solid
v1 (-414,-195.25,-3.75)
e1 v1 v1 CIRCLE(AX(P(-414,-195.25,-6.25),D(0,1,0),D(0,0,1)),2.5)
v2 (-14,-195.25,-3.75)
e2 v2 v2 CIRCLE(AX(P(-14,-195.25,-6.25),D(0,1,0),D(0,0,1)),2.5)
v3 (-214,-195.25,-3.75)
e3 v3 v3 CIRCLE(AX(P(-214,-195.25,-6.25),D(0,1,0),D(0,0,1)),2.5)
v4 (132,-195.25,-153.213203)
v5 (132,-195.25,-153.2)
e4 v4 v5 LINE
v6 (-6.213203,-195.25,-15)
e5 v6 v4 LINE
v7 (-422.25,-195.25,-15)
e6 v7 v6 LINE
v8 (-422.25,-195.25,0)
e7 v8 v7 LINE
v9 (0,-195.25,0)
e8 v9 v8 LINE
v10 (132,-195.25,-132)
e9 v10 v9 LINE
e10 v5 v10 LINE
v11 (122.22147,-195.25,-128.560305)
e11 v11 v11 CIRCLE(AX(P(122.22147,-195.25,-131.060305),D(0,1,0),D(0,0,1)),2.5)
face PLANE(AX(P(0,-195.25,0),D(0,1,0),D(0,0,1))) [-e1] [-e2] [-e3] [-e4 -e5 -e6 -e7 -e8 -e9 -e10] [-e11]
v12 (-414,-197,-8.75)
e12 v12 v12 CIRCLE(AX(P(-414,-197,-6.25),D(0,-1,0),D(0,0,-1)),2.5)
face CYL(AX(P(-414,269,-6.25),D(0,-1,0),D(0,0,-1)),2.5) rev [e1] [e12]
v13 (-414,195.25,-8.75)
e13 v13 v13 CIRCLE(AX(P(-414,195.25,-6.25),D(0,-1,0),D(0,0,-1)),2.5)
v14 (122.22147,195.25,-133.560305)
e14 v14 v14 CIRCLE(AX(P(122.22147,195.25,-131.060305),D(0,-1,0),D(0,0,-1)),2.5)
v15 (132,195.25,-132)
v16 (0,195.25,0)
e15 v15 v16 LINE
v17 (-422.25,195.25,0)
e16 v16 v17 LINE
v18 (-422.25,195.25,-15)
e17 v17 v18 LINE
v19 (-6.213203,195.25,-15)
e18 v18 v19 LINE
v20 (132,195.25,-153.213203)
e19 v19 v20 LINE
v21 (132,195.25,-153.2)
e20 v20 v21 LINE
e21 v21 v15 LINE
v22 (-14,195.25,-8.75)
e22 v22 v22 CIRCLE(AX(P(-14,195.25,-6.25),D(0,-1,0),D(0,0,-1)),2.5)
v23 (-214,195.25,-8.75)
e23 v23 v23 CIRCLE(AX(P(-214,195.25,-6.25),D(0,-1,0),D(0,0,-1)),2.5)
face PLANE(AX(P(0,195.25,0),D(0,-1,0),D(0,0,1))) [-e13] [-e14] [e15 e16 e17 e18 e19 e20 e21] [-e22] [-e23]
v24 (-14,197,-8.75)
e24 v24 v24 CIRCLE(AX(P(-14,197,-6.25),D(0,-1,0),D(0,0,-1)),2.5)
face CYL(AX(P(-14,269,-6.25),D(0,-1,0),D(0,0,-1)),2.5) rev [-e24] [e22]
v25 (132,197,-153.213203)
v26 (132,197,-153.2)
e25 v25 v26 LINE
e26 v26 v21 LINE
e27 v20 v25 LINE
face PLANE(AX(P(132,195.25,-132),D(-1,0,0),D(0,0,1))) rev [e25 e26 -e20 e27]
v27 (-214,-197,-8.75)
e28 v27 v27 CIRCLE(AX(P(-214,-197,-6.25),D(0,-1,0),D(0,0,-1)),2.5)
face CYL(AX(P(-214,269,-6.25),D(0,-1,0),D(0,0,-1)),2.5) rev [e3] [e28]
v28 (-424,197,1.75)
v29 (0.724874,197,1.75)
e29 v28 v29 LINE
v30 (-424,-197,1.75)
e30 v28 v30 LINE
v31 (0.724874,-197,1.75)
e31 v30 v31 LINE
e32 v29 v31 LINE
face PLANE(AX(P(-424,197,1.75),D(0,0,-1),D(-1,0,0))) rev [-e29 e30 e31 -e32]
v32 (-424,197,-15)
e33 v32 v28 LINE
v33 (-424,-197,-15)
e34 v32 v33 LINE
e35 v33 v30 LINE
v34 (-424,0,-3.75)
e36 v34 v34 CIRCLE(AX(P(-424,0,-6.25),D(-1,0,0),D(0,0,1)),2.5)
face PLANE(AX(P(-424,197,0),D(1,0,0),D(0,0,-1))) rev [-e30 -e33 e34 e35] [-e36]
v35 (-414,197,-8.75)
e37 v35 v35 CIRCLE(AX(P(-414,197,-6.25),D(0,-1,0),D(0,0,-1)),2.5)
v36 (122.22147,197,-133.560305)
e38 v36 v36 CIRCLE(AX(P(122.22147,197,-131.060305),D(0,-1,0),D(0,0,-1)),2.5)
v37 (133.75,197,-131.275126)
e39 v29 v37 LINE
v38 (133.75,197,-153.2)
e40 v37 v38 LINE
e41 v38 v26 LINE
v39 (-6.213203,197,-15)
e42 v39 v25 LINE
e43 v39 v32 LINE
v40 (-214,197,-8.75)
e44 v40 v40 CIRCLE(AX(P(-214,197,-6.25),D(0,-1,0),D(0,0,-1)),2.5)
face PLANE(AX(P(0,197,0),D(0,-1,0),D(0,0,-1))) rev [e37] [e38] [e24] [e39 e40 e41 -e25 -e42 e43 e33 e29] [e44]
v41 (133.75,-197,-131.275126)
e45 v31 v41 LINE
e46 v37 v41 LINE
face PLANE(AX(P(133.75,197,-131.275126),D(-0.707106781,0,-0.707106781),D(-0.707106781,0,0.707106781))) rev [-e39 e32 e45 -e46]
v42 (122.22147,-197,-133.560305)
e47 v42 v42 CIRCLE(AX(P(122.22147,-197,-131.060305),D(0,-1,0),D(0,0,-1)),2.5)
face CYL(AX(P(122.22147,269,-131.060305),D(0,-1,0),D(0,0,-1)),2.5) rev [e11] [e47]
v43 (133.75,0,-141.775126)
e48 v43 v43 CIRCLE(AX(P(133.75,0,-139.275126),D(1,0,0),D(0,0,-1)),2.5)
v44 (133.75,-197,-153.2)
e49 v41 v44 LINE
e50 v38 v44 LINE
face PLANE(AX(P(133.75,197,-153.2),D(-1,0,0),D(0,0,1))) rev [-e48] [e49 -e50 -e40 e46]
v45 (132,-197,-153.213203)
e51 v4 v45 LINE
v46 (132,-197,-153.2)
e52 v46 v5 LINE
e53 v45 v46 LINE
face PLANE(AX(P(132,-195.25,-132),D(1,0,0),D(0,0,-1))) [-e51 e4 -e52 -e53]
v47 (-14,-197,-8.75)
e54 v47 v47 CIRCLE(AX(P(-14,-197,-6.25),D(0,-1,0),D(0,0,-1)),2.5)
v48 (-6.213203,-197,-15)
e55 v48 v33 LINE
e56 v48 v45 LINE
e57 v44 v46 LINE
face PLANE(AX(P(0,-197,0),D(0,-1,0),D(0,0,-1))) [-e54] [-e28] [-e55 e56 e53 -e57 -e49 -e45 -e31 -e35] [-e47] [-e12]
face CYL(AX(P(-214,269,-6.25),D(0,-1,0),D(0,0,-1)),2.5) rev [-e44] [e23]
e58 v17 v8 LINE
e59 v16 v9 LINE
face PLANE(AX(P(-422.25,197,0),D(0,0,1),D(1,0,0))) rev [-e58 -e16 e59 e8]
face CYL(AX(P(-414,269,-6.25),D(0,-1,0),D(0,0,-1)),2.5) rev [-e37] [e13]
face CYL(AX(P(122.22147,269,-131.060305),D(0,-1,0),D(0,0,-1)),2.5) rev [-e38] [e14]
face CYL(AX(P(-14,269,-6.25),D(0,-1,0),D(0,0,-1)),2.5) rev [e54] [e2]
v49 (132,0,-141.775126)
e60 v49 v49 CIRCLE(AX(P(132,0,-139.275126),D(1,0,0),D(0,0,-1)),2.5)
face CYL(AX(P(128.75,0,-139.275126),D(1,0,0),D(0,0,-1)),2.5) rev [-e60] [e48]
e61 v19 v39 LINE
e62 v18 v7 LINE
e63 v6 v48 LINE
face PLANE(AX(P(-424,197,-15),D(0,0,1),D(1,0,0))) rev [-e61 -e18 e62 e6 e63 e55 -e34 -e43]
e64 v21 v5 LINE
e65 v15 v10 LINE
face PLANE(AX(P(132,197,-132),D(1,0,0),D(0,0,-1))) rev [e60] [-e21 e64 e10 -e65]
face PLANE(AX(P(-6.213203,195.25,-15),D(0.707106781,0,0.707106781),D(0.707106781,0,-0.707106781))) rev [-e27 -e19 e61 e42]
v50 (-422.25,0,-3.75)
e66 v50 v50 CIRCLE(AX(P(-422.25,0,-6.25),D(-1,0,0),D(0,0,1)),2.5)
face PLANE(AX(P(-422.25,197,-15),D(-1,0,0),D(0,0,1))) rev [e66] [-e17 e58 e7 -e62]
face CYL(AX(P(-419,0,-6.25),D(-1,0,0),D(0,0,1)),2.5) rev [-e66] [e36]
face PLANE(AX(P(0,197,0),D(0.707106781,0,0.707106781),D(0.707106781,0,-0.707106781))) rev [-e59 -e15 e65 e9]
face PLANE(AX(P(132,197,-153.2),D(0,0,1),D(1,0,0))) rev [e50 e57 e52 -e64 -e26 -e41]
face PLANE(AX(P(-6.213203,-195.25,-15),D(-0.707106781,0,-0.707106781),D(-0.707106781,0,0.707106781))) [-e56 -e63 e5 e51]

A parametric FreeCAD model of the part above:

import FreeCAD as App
import Part
import Sketcher
from FreeCAD import Vector
Q = App.Units.Quantity

doc = App.newDocument("Part")
body = doc.addObject("PartDesign::Body", "Body")

# Sketch on XZ plane
sketch1 = doc.addObject("Sketcher::SketchObject", "Sketch")
body.addObject(sketch1)
sketch1.AttachmentSupport = (doc.XZ_Plane, [""])
sketch1.MapMode = "FlatFace"
sketch1.addGeometry(Part.LineSegment(Vector(0, 0, 0), Vector(-422.25, 0, 0)), False)
sketch1.addGeometry(Part.LineSegment(Vector(-422.25, 0, 0), Vector(-422.25, -15, 0)), False)
sketch1.addGeometry(Part.LineSegment(Vector(-422.25, -15, 0), Vector(-424, -15, 0)), False)
sketch1.addGeometry(Part.LineSegment(Vector(-424, -15, 0), Vector(-424, 1.75, 0)), False)
sketch1.addGeometry(Part.LineSegment(Vector(-424, 1.75, 0), Vector(0.724874, 1.75, 0)), False)
sketch1.addGeometry(Part.LineSegment(Vector(0.724874, 1.75, 0), Vector(133.75, -131.275126, 0)), False)
sketch1.addGeometry(Part.LineSegment(Vector(133.75, -131.275126, 0), Vector(133.75, -153.2, 0)), False)
sketch1.addGeometry(Part.LineSegment(Vector(133.75, -153.2, 0), Vector(132, -153.2, 0)), False)
sketch1.addGeometry(Part.LineSegment(Vector(132, -153.2, 0), Vector(132, -132, 0)), False)
sketch1.addGeometry(Part.LineSegment(Vector(132, -132, 0), Vector(0, 0, 0)), False)
sketch1.addConstraint(Sketcher.Constraint("Coincident", 0, 2, 1, 1))
sketch1.addConstraint(Sketcher.Constraint("Coincident", 1, 2, 2, 1))
sketch1.addConstraint(Sketcher.Constraint("Coincident", 2, 2, 3, 1))
sketch1.addConstraint(Sketcher.Constraint("Coincident", 3, 2, 4, 1))
sketch1.addConstraint(Sketcher.Constraint("Coincident", 4, 2, 5, 1))
sketch1.addConstraint(Sketcher.Constraint("Coincident", 5, 2, 6, 1))
sketch1.addConstraint(Sketcher.Constraint("Coincident", 6, 2, 7, 1))
sketch1.addConstraint(Sketcher.Constraint("Coincident", 7, 2, 8, 1))
sketch1.addConstraint(Sketcher.Constraint("Coincident", 8, 2, 9, 1))
sketch1.addConstraint(Sketcher.Constraint("Coincident", 9, 2, 0, 1))
sketch1.addConstraint(Sketcher.Constraint("Horizontal", 0))
sketch1.addConstraint(Sketcher.Constraint("Vertical", 1))
sketch1.addConstraint(Sketcher.Constraint("Horizontal", 2))
sketch1.addConstraint(Sketcher.Constraint("Vertical", 3))
sketch1.addConstraint(Sketcher.Constraint("Horizontal", 4))
sketch1.addConstraint(Sketcher.Constraint("Vertical", 6))
sketch1.addConstraint(Sketcher.Constraint("Horizontal", 7))
sketch1.addConstraint(Sketcher.Constraint("Vertical", 8))
sketch1.addConstraint(Sketcher.Constraint("Coincident", 9, 2, -1, 1))
sketch1.addConstraint(Sketcher.Constraint("Parallel", 5, 9))
sketch1.addConstraint(Sketcher.Constraint("Equal", 2, 7))
sketch1.addConstraint(Sketcher.Constraint("DistanceY", 1, 2, 1, 1, 15.0))
sketch1.addConstraint(Sketcher.Constraint("Angle", 5, Q("-45 deg")))
sketch1.addConstraint(Sketcher.Constraint("DistanceY", 8, 1, 8, 2, 21.2))
sketch1.addConstraint(Sketcher.Constraint("DistanceX", 2, 2, -1, 1, 424.0))
sketch1.addConstraint(Sketcher.Constraint("DistanceX", -1, 1, 7, 2, 132.0))
sketch1.addConstraint(Sketcher.Constraint("DistanceX", 0, 2, 0, 1, 422.25))
sketch1.addConstraint(Sketcher.Constraint("DistanceY", 3, 1, 3, 2, 16.75))
sketch1.addConstraint(Sketcher.Constraint("DistanceX", 4, 1, 4, 2, 424.724874))
pad1 = doc.addObject("PartDesign::Pad", "Pad")
body.addObject(pad1)
pad1.Profile = sketch1
pad1.Length = 394
pad1.Midplane = True

# Sketch on XZ plane
sketch2 = doc.addObject("Sketcher::SketchObject", "Sketch001")
body.addObject(sketch2)
sketch2.AttachmentSupport = (doc.XZ_Plane, [""])
sketch2.MapMode = "FlatFace"
sketch2.AttachmentOffset = App.Placement(Vector(0, 0, 197), App.Rotation())
sketch2.addGeometry(Part.LineSegment(Vector(-422.25, 0, 0), Vector(-422.25, -15, 0)), False)
sketch2.addGeometry(Part.LineSegment(Vector(-422.25, -15, 0), Vector(-6.213203, -15, 0)), False)
sketch2.addGeometry(Part.LineSegment(Vector(-6.213203, -15, 0), Vector(132, -153.213203, 0)), False)
sketch2.addGeometry(Part.LineSegment(Vector(132, -153.213203, 0), Vector(132, -132, 0)), False)
sketch2.addGeometry(Part.LineSegment(Vector(132, -132, 0), Vector(0, 0, 0)), False)
sketch2.addGeometry(Part.LineSegment(Vector(0, 0, 0), Vector(-422.25, 0, 0)), False)
sketch2.addConstraint(Sketcher.Constraint("Coincident", 0, 2, 1, 1))
sketch2.addConstraint(Sketcher.Constraint("Coincident", 1, 2, 2, 1))
sketch2.addConstraint(Sketcher.Constraint("Coincident", 2, 2, 3, 1))
sketch2.addConstraint(Sketcher.Constraint("Coincident", 3, 2, 4, 1))
sketch2.addConstraint(Sketcher.Constraint("Coincident", 4, 2, 5, 1))
sketch2.addConstraint(Sketcher.Constraint("Coincident", 5, 2, 0, 1))
sketch2.addConstraint(Sketcher.Constraint("Vertical", 0))
sketch2.addConstraint(Sketcher.Constraint("Horizontal", 1))
sketch2.addConstraint(Sketcher.Constraint("Vertical", 3))
sketch2.addConstraint(Sketcher.Constraint("Horizontal", 5))
sketch2.addConstraint(Sketcher.Constraint("Coincident", 4, 2, -1, 1))
sketch2.addConstraint(Sketcher.Constraint("Parallel", 2, 4))
sketch2.addConstraint(Sketcher.Constraint("DistanceY", 0, 2, 0, 1, 15.0))
sketch2.addConstraint(Sketcher.Constraint("Angle", 2, Q("-45 deg")))
sketch2.addConstraint(Sketcher.Constraint("DistanceX", -1, 1, 2, 2, 132.0))
sketch2.addConstraint(Sketcher.Constraint("DistanceX", 5, 2, 5, 1, 422.25))
sketch2.addConstraint(Sketcher.Constraint("DistanceX", 1, 1, 1, 2, 416.036797))
pad2 = doc.addObject("PartDesign::Pad", "Pad001")
body.addObject(pad2)
pad2.Profile = sketch2
pad2.Length = 1.75
pad2.Reversed = True
doc.recompute()

mirrored = doc.addObject("PartDesign::Mirrored", "Mirrored")
body.addObject(mirrored)
mirrored.Originals = [pad2]
mirrored.MirrorPlane = (doc.XZ_Plane, [""])
body.Tip = mirrored

# Sketch on XZ plane
sketch3 = doc.addObject("Sketcher::SketchObject", "Sketch002")
body.addObject(sketch3)
sketch3.AttachmentSupport = (doc.XZ_Plane, [""])
sketch3.MapMode = "FlatFace"
sketch3.AttachmentOffset = App.Placement(Vector(0, 0, 197), App.Rotation())
sketch3.addGeometry(Part.Circle(Vector(-414, -6.25, 0), Vector(0, 0, 1), 2.5), False)
sketch3.addGeometry(Part.Circle(Vector(-214, -6.25, 0), Vector(0, 0, 1), 2.5), False)
sketch3.addGeometry(Part.Circle(Vector(-14, -6.25, 0), Vector(0, 0, 1), 2.5), False)
sketch3.addGeometry(Part.Circle(Vector(122.22147, -131.060305, 0), Vector(0, 0, 1), 2.5), False)
sketch3.addConstraint(Sketcher.Constraint("Equal", 0, 1))
sketch3.addConstraint(Sketcher.Constraint("Equal", 1, 2))
sketch3.addConstraint(Sketcher.Constraint("Equal", 2, 3))
sketch3.addConstraint(Sketcher.Constraint("Horizontal", 0, 3, 1, 3))
sketch3.addConstraint(Sketcher.Constraint("Horizontal", 1, 3, 2, 3))
sketch3.addConstraint(Sketcher.Constraint("Diameter", 0, 5.0))
sketch3.addConstraint(Sketcher.Constraint("DistanceX", 0, 3, -1, 1, 414.0))
sketch3.addConstraint(Sketcher.Constraint("DistanceX", 1, 3, -1, 1, 214.0))
sketch3.addConstraint(Sketcher.Constraint("DistanceX", 2, 3, -1, 1, 14.0))
sketch3.addConstraint(Sketcher.Constraint("DistanceY", 0, 3, -1, 1, 6.25))
sketch3.addConstraint(Sketcher.Constraint("DistanceX", -1, 1, 3, 3, 122.22147))
sketch3.addConstraint(Sketcher.Constraint("DistanceY", 3, 3, -1, 1, 131.060305))
pocket1 = doc.addObject("PartDesign::Pocket", "Pocket")
body.addObject(pocket1)
pocket1.Profile = sketch3
pocket1.Length = 466

# Sketch on YZ plane
sketch4 = doc.addObject("Sketcher::SketchObject", "Sketch003")
body.addObject(sketch4)
sketch4.AttachmentSupport = (doc.YZ_Plane, [""])
sketch4.MapMode = "FlatFace"
sketch4.AttachmentOffset = App.Placement(Vector(0, 0, 133.75), App.Rotation())
sketch4.addGeometry(Part.Circle(Vector(0, -139.275126, 0), Vector(0, 0, 1), 2.5), False)
sketch4.addConstraint(Sketcher.Constraint("PointOnObject", 0, 3, -2))
sketch4.addConstraint(Sketcher.Constraint("Diameter", 0, 5.0))
sketch4.addConstraint(Sketcher.Constraint("DistanceY", 0, 3, -1, 1, 139.275126))
pocket2 = doc.addObject("PartDesign::Pocket", "Pocket001")
body.addObject(pocket2)
pocket2.Profile = sketch4
pocket2.Length = 5

# Sketch on YZ plane
sketch5 = doc.addObject("Sketcher::SketchObject", "Sketch004")
body.addObject(sketch5)
sketch5.AttachmentSupport = (doc.YZ_Plane, [""])
sketch5.MapMode = "FlatFace"
sketch5.AttachmentOffset = App.Placement(Vector(0, 0, -424), App.Rotation())
sketch5.addGeometry(Part.Circle(Vector(0, -6.25, 0), Vector(0, 0, 1), 2.5), False)
sketch5.addConstraint(Sketcher.Constraint("PointOnObject", 0, 3, -2))
sketch5.addConstraint(Sketcher.Constraint("Diameter", 0, 5.0))
sketch5.addConstraint(Sketcher.Constraint("DistanceY", 0, 3, -1, 1, 6.25))
pocket3 = doc.addObject("PartDesign::Pocket", "Pocket002")
body.addObject(pocket3)
pocket3.Profile = sketch5
pocket3.Length = 5
pocket3.Reversed = True

doc.recompute()
